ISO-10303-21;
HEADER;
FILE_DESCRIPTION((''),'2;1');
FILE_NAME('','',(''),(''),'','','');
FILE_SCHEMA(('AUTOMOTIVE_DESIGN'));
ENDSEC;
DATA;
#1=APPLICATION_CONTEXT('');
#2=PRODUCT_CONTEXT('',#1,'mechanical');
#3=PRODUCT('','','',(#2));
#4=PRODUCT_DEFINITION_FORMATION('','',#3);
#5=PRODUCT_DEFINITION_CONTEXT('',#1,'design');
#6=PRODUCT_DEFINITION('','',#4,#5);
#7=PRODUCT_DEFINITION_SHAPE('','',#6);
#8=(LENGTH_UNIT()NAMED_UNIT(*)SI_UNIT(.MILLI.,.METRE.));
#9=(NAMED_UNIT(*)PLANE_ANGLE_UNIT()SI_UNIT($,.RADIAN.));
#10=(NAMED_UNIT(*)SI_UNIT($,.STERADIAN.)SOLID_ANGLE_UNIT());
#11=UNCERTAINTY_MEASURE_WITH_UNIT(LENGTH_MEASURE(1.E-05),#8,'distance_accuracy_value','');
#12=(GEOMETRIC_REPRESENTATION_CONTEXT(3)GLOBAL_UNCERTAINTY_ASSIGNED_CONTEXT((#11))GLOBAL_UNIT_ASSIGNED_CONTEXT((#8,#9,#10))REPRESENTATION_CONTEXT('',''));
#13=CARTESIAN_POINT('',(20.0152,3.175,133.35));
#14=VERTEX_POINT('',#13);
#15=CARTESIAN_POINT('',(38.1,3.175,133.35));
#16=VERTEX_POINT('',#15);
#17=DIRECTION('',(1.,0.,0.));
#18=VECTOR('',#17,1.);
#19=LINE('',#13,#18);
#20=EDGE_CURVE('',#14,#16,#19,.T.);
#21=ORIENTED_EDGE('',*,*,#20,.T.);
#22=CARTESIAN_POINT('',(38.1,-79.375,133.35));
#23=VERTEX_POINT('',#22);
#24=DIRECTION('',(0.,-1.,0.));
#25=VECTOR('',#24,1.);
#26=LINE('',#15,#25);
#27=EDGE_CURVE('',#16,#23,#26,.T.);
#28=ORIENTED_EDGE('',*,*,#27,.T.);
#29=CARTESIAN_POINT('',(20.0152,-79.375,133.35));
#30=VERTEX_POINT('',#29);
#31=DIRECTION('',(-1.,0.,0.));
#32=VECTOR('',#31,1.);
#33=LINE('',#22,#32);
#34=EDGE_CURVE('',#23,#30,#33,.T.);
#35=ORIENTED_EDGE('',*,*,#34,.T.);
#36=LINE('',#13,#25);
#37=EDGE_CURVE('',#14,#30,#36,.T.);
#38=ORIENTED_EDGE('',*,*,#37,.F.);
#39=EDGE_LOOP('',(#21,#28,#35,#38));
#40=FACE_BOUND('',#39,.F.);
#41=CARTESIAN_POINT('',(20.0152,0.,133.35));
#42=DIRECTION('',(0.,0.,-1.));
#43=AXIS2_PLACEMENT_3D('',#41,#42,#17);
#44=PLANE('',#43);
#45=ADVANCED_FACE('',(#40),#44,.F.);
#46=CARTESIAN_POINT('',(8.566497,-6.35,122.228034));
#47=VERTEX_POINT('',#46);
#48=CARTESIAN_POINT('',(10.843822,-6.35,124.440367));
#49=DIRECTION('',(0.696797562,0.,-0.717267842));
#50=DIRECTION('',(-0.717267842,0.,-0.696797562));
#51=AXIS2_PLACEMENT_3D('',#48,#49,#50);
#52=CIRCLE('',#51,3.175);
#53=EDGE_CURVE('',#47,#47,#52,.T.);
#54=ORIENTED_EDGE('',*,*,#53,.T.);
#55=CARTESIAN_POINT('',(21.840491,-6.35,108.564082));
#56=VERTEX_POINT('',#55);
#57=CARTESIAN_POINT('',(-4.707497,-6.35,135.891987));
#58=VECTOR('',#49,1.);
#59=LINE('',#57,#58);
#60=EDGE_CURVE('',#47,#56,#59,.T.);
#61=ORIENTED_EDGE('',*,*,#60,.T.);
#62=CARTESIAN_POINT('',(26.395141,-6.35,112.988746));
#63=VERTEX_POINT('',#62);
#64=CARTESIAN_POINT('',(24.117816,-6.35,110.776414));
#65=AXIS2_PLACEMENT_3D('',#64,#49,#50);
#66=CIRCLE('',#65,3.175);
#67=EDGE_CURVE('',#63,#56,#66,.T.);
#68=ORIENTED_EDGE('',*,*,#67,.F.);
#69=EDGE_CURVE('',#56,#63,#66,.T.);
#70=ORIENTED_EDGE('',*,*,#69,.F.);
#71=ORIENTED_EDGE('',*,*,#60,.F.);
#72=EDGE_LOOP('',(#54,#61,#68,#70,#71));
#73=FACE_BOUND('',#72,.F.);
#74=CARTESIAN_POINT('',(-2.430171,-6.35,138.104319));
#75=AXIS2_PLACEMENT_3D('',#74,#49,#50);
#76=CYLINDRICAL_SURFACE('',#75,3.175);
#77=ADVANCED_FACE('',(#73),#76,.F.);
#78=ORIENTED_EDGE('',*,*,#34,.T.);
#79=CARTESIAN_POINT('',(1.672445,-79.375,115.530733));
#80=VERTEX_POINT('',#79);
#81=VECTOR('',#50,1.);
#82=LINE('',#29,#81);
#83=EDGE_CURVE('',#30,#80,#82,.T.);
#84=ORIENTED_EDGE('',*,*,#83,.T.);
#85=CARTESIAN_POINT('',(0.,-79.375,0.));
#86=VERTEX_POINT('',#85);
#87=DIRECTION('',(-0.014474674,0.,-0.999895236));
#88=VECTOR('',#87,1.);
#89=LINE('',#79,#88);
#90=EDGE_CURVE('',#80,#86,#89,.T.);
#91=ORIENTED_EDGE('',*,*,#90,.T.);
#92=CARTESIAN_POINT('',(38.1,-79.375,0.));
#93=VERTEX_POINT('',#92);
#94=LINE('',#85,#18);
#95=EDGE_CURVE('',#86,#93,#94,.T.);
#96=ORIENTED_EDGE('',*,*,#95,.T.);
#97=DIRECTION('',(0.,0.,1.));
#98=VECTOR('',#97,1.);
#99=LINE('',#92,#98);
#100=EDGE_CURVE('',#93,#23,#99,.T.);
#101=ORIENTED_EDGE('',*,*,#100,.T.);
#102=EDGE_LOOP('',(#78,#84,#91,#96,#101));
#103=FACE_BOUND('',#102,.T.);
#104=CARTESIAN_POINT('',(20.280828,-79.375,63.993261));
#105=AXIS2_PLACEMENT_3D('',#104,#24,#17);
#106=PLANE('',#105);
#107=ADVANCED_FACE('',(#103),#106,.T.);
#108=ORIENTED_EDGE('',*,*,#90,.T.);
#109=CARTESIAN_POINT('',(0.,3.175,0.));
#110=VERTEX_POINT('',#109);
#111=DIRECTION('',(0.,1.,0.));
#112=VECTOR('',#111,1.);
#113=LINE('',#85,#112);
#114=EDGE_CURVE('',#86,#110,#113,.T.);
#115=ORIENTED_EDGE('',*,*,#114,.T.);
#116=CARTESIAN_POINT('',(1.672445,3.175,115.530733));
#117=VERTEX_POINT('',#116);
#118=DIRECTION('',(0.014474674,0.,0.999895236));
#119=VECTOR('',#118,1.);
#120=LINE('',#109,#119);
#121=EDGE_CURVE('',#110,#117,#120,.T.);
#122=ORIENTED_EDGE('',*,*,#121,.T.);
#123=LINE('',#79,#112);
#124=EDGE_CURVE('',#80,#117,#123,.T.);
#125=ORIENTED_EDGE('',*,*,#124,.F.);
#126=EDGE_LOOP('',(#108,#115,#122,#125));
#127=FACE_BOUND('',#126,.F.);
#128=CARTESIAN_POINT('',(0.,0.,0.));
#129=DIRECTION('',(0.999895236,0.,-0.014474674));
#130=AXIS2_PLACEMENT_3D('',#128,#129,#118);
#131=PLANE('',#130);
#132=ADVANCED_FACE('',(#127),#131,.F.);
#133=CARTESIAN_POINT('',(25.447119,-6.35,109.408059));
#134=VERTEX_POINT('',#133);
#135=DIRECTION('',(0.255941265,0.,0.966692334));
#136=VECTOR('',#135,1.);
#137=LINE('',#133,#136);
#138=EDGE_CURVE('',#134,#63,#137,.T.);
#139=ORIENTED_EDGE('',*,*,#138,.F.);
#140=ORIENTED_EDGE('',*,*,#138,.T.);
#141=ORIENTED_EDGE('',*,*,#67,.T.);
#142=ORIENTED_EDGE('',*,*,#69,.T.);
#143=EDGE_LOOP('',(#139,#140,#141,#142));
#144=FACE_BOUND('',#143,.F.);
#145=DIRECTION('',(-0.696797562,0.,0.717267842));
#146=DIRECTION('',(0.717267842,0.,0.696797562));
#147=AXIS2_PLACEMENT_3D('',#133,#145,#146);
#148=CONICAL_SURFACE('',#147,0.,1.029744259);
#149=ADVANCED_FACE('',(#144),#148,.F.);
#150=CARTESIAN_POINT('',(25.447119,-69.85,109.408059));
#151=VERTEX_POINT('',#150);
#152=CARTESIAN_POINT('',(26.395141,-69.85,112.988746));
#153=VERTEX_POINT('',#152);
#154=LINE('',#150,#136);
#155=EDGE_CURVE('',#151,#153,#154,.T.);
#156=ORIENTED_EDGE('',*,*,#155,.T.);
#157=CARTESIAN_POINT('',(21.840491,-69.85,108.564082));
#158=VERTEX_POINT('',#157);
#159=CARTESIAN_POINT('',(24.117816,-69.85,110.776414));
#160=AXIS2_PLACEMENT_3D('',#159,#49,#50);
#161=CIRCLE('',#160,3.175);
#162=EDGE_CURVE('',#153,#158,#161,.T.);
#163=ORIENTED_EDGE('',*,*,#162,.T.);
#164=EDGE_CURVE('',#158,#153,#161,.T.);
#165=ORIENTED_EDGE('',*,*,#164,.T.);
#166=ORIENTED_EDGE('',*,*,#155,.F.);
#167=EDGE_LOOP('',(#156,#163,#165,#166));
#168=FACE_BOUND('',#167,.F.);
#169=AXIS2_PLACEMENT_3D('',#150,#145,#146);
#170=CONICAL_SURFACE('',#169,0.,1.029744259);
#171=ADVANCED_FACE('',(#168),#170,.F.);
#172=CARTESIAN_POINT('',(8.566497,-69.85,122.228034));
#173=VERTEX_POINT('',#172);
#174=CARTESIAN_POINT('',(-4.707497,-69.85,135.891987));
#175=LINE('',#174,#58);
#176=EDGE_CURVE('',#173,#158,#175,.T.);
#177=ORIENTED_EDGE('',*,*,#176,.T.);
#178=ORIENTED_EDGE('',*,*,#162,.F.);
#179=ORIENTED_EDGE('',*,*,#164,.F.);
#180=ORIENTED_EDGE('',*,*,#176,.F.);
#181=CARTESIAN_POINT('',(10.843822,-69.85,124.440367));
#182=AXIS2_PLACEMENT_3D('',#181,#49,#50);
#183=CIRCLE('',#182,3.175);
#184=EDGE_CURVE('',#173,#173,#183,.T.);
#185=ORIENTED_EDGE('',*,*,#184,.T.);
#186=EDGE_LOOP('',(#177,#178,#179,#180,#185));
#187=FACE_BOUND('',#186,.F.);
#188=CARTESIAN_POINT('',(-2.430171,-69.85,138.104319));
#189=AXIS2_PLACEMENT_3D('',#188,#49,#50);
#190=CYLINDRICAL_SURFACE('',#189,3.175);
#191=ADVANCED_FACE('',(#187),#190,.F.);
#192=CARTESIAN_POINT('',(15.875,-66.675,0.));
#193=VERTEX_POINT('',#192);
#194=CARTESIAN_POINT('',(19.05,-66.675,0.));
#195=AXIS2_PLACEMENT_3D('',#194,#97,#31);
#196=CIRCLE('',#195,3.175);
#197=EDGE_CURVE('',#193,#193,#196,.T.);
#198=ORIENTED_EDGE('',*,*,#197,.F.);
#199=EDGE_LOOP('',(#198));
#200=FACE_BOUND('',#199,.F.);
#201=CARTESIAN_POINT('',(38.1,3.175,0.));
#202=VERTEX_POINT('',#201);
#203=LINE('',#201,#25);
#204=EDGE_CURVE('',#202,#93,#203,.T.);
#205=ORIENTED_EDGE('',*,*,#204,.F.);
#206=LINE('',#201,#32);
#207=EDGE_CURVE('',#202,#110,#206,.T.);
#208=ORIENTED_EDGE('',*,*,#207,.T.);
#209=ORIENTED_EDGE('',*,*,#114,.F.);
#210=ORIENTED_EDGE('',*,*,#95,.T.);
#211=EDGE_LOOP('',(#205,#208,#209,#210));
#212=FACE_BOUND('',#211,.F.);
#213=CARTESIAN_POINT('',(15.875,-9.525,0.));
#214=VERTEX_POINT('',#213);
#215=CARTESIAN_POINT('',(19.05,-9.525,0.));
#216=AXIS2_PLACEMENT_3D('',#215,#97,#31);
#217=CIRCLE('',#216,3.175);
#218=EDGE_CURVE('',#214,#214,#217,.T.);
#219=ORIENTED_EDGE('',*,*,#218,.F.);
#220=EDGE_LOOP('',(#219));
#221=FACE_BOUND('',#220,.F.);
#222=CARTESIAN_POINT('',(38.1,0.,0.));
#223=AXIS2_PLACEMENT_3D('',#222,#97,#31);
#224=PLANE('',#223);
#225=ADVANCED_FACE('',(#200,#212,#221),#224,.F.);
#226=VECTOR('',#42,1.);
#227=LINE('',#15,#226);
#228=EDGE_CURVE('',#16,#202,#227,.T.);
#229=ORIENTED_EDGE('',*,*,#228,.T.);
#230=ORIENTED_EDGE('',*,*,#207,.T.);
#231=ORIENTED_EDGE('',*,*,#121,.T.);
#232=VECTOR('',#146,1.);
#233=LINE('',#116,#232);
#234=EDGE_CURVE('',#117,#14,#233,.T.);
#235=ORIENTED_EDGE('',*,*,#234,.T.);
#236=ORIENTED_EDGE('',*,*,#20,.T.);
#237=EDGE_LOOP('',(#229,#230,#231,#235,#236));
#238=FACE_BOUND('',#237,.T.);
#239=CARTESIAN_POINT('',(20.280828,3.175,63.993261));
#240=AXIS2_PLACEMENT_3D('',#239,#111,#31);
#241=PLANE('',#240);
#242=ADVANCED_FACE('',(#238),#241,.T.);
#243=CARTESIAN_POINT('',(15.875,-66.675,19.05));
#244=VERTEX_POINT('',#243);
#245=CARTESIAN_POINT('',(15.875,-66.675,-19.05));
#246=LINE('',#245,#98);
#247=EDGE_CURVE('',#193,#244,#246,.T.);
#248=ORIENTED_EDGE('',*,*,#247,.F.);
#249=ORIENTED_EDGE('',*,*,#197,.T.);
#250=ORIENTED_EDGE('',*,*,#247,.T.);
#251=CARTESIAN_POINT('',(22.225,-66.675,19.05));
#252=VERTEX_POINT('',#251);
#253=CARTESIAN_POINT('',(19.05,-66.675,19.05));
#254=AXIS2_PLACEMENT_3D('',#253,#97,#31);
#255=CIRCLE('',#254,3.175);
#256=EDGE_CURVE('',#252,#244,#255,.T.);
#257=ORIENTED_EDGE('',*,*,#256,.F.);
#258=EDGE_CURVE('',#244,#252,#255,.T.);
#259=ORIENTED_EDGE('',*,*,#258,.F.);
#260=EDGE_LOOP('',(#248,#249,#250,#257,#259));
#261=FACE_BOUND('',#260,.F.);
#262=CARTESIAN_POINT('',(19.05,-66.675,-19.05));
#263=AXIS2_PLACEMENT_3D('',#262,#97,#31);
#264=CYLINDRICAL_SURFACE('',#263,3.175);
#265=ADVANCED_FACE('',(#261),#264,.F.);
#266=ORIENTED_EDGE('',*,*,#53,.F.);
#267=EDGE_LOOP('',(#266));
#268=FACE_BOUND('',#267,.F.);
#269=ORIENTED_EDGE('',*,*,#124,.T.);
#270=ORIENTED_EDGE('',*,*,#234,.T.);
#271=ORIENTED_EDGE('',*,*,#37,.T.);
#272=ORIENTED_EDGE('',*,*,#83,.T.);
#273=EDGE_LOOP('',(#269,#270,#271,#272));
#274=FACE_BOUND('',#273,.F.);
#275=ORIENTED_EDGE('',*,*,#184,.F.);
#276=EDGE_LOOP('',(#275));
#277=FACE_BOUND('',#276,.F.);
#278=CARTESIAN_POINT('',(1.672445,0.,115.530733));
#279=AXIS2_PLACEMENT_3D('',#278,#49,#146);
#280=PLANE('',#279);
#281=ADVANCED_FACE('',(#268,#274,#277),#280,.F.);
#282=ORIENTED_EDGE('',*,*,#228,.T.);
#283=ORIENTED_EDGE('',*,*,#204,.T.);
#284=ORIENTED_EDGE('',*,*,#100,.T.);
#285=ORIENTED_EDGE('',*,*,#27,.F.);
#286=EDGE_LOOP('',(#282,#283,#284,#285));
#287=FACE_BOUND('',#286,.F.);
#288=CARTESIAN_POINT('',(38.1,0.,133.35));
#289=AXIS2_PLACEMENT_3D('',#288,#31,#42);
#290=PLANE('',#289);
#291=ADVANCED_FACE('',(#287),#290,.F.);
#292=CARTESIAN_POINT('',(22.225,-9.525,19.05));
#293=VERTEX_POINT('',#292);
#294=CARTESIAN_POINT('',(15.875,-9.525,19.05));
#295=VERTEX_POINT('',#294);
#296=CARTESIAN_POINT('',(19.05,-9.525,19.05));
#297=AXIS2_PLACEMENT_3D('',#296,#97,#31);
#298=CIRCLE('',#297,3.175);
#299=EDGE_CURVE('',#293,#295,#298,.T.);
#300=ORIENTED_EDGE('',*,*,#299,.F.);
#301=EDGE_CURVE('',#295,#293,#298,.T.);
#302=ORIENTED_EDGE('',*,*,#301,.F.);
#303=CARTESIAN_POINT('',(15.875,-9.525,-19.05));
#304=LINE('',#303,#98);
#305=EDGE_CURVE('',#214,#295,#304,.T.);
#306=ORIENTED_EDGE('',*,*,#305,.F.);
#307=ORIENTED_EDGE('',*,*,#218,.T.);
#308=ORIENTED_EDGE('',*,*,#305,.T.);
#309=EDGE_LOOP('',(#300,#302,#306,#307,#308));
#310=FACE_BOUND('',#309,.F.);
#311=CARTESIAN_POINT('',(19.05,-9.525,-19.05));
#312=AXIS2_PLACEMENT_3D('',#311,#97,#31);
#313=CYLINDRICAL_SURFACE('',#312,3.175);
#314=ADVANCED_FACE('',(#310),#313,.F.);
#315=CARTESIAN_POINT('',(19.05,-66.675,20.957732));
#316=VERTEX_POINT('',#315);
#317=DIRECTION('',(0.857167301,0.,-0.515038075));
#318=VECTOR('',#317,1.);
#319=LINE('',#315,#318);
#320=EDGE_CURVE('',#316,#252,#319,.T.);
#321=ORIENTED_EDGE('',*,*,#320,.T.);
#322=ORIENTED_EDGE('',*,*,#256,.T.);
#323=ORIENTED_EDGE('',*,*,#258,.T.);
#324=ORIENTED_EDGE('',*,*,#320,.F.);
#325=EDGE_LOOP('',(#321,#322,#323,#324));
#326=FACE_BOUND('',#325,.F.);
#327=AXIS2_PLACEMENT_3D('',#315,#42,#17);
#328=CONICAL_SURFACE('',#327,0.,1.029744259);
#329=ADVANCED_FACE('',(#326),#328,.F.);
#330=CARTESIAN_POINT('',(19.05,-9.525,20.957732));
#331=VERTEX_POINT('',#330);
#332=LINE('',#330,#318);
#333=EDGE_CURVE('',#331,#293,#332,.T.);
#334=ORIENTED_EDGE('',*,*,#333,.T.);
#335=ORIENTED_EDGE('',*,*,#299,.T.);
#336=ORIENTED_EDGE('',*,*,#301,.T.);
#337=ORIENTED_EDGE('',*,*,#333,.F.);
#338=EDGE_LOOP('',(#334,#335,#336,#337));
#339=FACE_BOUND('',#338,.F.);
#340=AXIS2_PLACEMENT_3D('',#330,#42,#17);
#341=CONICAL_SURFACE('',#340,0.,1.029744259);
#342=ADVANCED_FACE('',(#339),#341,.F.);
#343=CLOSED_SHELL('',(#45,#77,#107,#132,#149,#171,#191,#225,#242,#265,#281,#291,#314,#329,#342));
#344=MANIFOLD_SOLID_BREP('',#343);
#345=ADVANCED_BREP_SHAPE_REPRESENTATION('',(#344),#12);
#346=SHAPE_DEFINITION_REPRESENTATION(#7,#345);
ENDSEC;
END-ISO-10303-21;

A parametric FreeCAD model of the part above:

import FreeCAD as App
import Part
import Sketcher
from FreeCAD import Vector
Q = App.Units.Quantity

doc = App.newDocument("Part")
body = doc.addObject("PartDesign::Body", "Body")

# Sketch on XZ plane
sketch1 = body.newObject("Sketcher::SketchObject", "Sketch")
sketch1.AttachmentSupport = (doc.getObject("XZ_Plane"), [""])
sketch1.MapMode = "FlatFace"
sketch1.addGeometry([
    Part.LineSegment(Vector(2, 116, 0), Vector(0, 0, 0)),  # 0
    Part.LineSegment(Vector(0, 0, 0), Vector(38, 0, 0)),  # 1
    Part.LineSegment(Vector(38, 0, 0), Vector(38, 133, 0)),  # 2
    Part.LineSegment(Vector(38, 133, 0), Vector(20, 133, 0)),  # 3
    Part.LineSegment(Vector(20, 133, 0), Vector(2, 116, 0)),  # 4
], False)
sketch1.addConstraint([
    Sketcher.Constraint("Coincident", 0, 2, 1, 1),
    Sketcher.Constraint("Coincident", 1, 2, 2, 1),
    Sketcher.Constraint("Coincident", 2, 2, 3, 1),
    Sketcher.Constraint("Coincident", 3, 2, 4, 1),
    Sketcher.Constraint("Coincident", 4, 2, 0, 1),
    Sketcher.Constraint("Horizontal", 1),
    Sketcher.Constraint("Vertical", 2),
    Sketcher.Constraint("Horizontal", 3),
    Sketcher.Constraint("Coincident", 0, 2, -1, 1),
    Sketcher.Constraint("DistanceX", 1, 1, 1, 2, Q("1.5 in")),
    Sketcher.Constraint("DistanceY", 2, 1, 2, 2, Q("5.25 in")),
    Sketcher.Constraint("DistanceX", 3, 2, 3, 1, Q("0.712 in")),
    Sketcher.Constraint("Distance", 4, 25.57309),
    Sketcher.Constraint("Distance", 0, 115.542838),
])
pad1 = body.newObject("PartDesign::Pad", "Pad")
pad1.Profile = sketch1
pad1.Length = Q("3 in")

# Sketch on an angled plane
sketch2 = body.newObject("Sketcher::SketchObject", "Sketch001")
sketch2.Placement = App.Placement(Vector(-56.929144, 0, 58.601589), App.Rotation(Vector(0.717267842, 0, 0.696797562), Vector(0, 1, 0), Vector(-0.696797562, 0, 0.717267842), "ZXY"))
sketch2.addGeometry([
    Part.Circle(Vector(94.5, -6.3, 0), Vector(0, 0, 1), 3.2),
    Part.Circle(Vector(94.5, -69.8, 0), Vector(0, 0, 1), 3.2),
], False)
sketch2.addConstraint([
    Sketcher.Constraint("Equal", 0, 1),
    Sketcher.Constraint("Vertical", 0, 3, 1, 3),
    Sketcher.Constraint("Diameter", 0, Q("0.25 in")),
    Sketcher.Constraint("DistanceY", 1, 3, 0, 3, Q("2.5 in")),
    Sketcher.Constraint("DistanceY", 0, 3, -1, 1, Q("0.25 in")),
    Sketcher.Constraint("DistanceX", -1, 1, 0, 3, 94.487669),
])
doc.recompute()
hole = body.newObject("PartDesign::Hole", "Hole")
hole.Profile = sketch2
hole.ThreadType = "None"
hole.Diameter = Q("0.25 in")
hole.DepthType = "Dimension"
hole.Depth = Q("0.75 in")
hole.DrillPoint = "Angled"
hole.DrillPointAngle = 118

# Sketch on XZ plane
sketch3 = body.newObject("Sketcher::SketchObject", "Sketch002")
sketch3.AttachmentSupport = (doc.getObject("XZ_Plane"), [""])
sketch3.MapMode = "FlatFace"
sketch3.AttachmentOffset = App.Placement(Vector(0, 0, 3 * 25.4), App.Rotation())
sketch3.addGeometry([
    Part.LineSegment(Vector(20, 133, 0), Vector(2, 116, 0)),  # 0
    Part.LineSegment(Vector(2, 116, 0), Vector(0, 0, 0)),  # 1
    Part.LineSegment(Vector(0, 0, 0), Vector(38, 0, 0)),  # 2
    Part.LineSegment(Vector(38, 0, 0), Vector(38, 133, 0)),  # 3
    Part.LineSegment(Vector(38, 133, 0), Vector(20, 133, 0)),  # 4
], False)
sketch3.addConstraint([
    Sketcher.Constraint("Coincident", 0, 2, 1, 1),
    Sketcher.Constraint("Coincident", 1, 2, 2, 1),
    Sketcher.Constraint("Coincident", 2, 2, 3, 1),
    Sketcher.Constraint("Coincident", 3, 2, 4, 1),
    Sketcher.Constraint("Coincident", 4, 2, 0, 1),
    Sketcher.Constraint("Horizontal", 2),
    Sketcher.Constraint("Vertical", 3),
    Sketcher.Constraint("Horizontal", 4),
    Sketcher.Constraint("Coincident", 1, 2, -1, 1),
    Sketcher.Constraint("DistanceX", 2, 1, 2, 2, Q("1.5 in")),
    Sketcher.Constraint("DistanceY", 3, 1, 3, 2, Q("5.25 in")),
    Sketcher.Constraint("DistanceX", 4, 2, 4, 1, Q("0.712 in")),
    Sketcher.Constraint("Distance", 0, 25.57309),
    Sketcher.Constraint("Distance", 1, 115.542838),
])
pad2 = body.newObject("PartDesign::Pad", "Pad001")
pad2.Profile = sketch3
pad2.Length = Q("0.125 in")

# Sketch on XZ plane
sketch4 = body.newObject("Sketcher::SketchObject", "Sketch003")
sketch4.AttachmentSupport = (doc.getObject("XZ_Plane"), [""])
sketch4.MapMode = "FlatFace"
sketch4.addGeometry([
    Part.LineSegment(Vector(38, 0, 0), Vector(0, 0, 0)),  # 0
    Part.LineSegment(Vector(0, 0, 0), Vector(2, 116, 0)),  # 1
    Part.LineSegment(Vector(2, 116, 0), Vector(20, 133, 0)),  # 2
    Part.LineSegment(Vector(20, 133, 0), Vector(38, 133, 0)),  # 3
    Part.LineSegment(Vector(38, 133, 0), Vector(38, 0, 0)),  # 4
], False)
sketch4.addConstraint([
    Sketcher.Constraint("Coincident", 0, 2, 1, 1),
    Sketcher.Constraint("Coincident", 1, 2, 2, 1),
    Sketcher.Constraint("Coincident", 2, 2, 3, 1),
    Sketcher.Constraint("Coincident", 3, 2, 4, 1),
    Sketcher.Constraint("Coincident", 4, 2, 0, 1),
    Sketcher.Constraint("Horizontal", 0),
    Sketcher.Constraint("Horizontal", 3),
    Sketcher.Constraint("Vertical", 4),
    Sketcher.Constraint("Coincident", 0, 2, -1, 1),
    Sketcher.Constraint("DistanceX", 0, 2, 0, 1, Q("1.5 in")),
    Sketcher.Constraint("DistanceY", 4, 2, 4, 1, Q("5.25 in")),
    Sketcher.Constraint("DistanceX", 3, 1, 3, 2, Q("0.712 in")),
    Sketcher.Constraint("Distance", 2, 25.57309),
    Sketcher.Constraint("Distance", 1, 115.542838),
])
pad3 = body.newObject("PartDesign::Pad", "Pad002")
pad3.Profile = sketch4
pad3.Length = Q("0.125 in")
pad3.Reversed = True

# Sketch on XY plane
sketch5 = body.newObject("Sketcher::SketchObject", "Sketch004")
sketch5.AttachmentSupport = (doc.getObject("XY_Plane"), [""])
sketch5.MapMode = "FlatFace"
sketch5.addGeometry([
    Part.Circle(Vector(19.1, -9.5, 0), Vector(0, 0, 1), 3.2),
    Part.Circle(Vector(19.1, -66.7, 0), Vector(0, 0, 1), 3.2),
], False)
sketch5.addConstraint([
    Sketcher.Constraint("Equal", 0, 1),
    Sketcher.Constraint("Vertical", 0, 3, 1, 3),
    Sketcher.Constraint("Diameter", 0, Q("0.25 in")),
    Sketcher.Constraint("DistanceX", -1, 1, 0, 3, Q("0.75 in")),
    Sketcher.Constraint("DistanceY", 1, 3, 0, 3, Q("2.25 in")),
    Sketcher.Constraint("DistanceY", 0, 3, -1, 1, Q("0.375 in")),
])
doc.recompute()
hole2 = body.newObject("PartDesign::Hole", "Hole001")
hole2.Profile = sketch5
hole2.ThreadType = "None"
hole2.Diameter = Q("0.25 in")
hole2.DepthType = "Dimension"
hole2.Depth = Q("0.75 in")
hole2.DrillPoint = "Angled"
hole2.DrillPointAngle = 118
hole2.Reversed = True

doc.recompute()
